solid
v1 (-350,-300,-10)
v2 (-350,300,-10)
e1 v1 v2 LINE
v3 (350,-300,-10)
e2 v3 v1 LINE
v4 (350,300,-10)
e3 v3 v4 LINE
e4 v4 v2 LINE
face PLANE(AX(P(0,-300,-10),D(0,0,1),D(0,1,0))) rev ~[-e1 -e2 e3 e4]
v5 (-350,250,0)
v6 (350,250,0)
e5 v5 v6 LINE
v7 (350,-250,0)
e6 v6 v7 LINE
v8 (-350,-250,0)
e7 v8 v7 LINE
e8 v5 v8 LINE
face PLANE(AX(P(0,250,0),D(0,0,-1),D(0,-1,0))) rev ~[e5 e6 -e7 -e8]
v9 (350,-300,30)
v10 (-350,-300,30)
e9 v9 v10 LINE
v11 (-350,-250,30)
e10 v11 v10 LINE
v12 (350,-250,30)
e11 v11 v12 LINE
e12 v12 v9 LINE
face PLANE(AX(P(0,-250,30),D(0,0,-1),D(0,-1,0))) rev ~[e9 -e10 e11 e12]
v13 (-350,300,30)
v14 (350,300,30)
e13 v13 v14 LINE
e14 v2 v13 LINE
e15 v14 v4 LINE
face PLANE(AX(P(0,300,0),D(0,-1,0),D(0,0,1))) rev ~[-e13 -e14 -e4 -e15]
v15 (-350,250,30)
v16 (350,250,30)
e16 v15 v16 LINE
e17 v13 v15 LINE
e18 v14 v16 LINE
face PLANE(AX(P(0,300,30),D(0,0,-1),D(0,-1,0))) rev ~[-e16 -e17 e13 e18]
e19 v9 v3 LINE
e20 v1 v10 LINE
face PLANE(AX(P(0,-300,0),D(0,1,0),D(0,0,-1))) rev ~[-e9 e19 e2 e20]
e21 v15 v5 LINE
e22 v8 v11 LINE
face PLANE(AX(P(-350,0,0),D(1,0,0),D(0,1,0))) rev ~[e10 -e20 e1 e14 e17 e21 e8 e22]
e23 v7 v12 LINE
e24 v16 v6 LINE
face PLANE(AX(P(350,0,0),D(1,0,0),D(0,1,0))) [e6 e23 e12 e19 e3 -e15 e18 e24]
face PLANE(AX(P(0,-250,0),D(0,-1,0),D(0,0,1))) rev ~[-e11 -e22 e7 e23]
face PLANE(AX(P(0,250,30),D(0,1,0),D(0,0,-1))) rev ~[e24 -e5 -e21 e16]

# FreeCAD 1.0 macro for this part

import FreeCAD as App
import Part
import Sketcher
from FreeCAD import Vector
Q = App.Units.Quantity

doc = App.newDocument("Part")
params = doc.addObject("Spreadsheet::Sheet", "Params")
for row, (alias, value) in enumerate([
    ("sketch1_width", "50 mm"),
    ("sketch1_width2", "600 mm"),
    ("sketch1_height", "30 mm"),
    ("pad1_length", "700 mm"),
], start=1):
    params.set(f"A{row}", alias)
    params.set(f"B{row}", "=" + value)
    params.setAlias(f"B{row}", alias)

body = doc.addObject("PartDesign::Body", "Body")

sketch1 = body.newObject("Sketcher::SketchObject", "Sketch")
sketch1.AttachmentSupport = (doc.getObject("YZ_Plane"), [""])
sketch1.MapMode = "FlatFace"
sketch1.addGeometry([
    Part.LineSegment(Vector(300, 30, 0), Vector(250, 30, 0)),
    Part.LineSegment(Vector(250, 30, 0), Vector(250, 0, 0)),
    Part.LineSegment(Vector(250, 0, 0), Vector(-250, 0, 0)),
    Part.LineSegment(Vector(-250, 0, 0), Vector(-250, 30, 0)),
    Part.LineSegment(Vector(-250, 30, 0), Vector(-300, 30, 0)),
    Part.LineSegment(Vector(-300, 30, 0), Vector(-300, -10, 0)),
    Part.LineSegment(Vector(-300, -10, 0), Vector(300, -10, 0)),
    Part.LineSegment(Vector(300, -10, 0), Vector(300, 30, 0)),
], False)
sketch1.addConstraint([
    Sketcher.Constraint("Coincident", 0, 2, 1, 1),
    Sketcher.Constraint("Coincident", 1, 2, 2, 1),
    Sketcher.Constraint("Coincident", 2, 2, 3, 1),
    Sketcher.Constraint("Coincident", 3, 2, 4, 1),
    Sketcher.Constraint("Coincident", 4, 2, 5, 1),
    Sketcher.Constraint("Coincident", 5, 2, 6, 1),
    Sketcher.Constraint("Coincident", 6, 2, 7, 1),
    Sketcher.Constraint("Coincident", 7, 2, 0, 1),
    Sketcher.Constraint("Horizontal", 0),
    Sketcher.Constraint("Vertical", 1),
    Sketcher.Constraint("Horizontal", 2),
    Sketcher.Constraint("Vertical", 3),
    Sketcher.Constraint("Horizontal", 4),
    Sketcher.Constraint("Vertical", 5),
    Sketcher.Constraint("Horizontal", 6),
    Sketcher.Constraint("Vertical", 7),
    Sketcher.Constraint("Symmetric", 1, 2, 2, 2, -1, 1),
    Sketcher.Constraint("Symmetric", 4, 2, 7, 2, -2),
    Sketcher.Constraint("DistanceX", 0, 2, 0, 1, Q("50 mm")),
    Sketcher.Constraint("DistanceX", 6, 1, 6, 2, Q("600 mm")),
    Sketcher.Constraint("DistanceY", 1, 2, 1, 1, Q("30 mm")),
    Sketcher.Constraint("DistanceY", 5, 2, -1, 1, Q("10 mm")),
])
sketch1.setExpression("Constraints[18]", "Params.sketch1_width")
sketch1.setExpression("Constraints[19]", "Params.sketch1_width2")
sketch1.setExpression("Constraints[20]", "Params.sketch1_height")
pad1 = body.newObject("PartDesign::Pad", "Pad")
pad1.Profile = sketch1
pad1.setExpression("Length", "Params.pad1_length")
pad1.Midplane = True

doc.recompute()
